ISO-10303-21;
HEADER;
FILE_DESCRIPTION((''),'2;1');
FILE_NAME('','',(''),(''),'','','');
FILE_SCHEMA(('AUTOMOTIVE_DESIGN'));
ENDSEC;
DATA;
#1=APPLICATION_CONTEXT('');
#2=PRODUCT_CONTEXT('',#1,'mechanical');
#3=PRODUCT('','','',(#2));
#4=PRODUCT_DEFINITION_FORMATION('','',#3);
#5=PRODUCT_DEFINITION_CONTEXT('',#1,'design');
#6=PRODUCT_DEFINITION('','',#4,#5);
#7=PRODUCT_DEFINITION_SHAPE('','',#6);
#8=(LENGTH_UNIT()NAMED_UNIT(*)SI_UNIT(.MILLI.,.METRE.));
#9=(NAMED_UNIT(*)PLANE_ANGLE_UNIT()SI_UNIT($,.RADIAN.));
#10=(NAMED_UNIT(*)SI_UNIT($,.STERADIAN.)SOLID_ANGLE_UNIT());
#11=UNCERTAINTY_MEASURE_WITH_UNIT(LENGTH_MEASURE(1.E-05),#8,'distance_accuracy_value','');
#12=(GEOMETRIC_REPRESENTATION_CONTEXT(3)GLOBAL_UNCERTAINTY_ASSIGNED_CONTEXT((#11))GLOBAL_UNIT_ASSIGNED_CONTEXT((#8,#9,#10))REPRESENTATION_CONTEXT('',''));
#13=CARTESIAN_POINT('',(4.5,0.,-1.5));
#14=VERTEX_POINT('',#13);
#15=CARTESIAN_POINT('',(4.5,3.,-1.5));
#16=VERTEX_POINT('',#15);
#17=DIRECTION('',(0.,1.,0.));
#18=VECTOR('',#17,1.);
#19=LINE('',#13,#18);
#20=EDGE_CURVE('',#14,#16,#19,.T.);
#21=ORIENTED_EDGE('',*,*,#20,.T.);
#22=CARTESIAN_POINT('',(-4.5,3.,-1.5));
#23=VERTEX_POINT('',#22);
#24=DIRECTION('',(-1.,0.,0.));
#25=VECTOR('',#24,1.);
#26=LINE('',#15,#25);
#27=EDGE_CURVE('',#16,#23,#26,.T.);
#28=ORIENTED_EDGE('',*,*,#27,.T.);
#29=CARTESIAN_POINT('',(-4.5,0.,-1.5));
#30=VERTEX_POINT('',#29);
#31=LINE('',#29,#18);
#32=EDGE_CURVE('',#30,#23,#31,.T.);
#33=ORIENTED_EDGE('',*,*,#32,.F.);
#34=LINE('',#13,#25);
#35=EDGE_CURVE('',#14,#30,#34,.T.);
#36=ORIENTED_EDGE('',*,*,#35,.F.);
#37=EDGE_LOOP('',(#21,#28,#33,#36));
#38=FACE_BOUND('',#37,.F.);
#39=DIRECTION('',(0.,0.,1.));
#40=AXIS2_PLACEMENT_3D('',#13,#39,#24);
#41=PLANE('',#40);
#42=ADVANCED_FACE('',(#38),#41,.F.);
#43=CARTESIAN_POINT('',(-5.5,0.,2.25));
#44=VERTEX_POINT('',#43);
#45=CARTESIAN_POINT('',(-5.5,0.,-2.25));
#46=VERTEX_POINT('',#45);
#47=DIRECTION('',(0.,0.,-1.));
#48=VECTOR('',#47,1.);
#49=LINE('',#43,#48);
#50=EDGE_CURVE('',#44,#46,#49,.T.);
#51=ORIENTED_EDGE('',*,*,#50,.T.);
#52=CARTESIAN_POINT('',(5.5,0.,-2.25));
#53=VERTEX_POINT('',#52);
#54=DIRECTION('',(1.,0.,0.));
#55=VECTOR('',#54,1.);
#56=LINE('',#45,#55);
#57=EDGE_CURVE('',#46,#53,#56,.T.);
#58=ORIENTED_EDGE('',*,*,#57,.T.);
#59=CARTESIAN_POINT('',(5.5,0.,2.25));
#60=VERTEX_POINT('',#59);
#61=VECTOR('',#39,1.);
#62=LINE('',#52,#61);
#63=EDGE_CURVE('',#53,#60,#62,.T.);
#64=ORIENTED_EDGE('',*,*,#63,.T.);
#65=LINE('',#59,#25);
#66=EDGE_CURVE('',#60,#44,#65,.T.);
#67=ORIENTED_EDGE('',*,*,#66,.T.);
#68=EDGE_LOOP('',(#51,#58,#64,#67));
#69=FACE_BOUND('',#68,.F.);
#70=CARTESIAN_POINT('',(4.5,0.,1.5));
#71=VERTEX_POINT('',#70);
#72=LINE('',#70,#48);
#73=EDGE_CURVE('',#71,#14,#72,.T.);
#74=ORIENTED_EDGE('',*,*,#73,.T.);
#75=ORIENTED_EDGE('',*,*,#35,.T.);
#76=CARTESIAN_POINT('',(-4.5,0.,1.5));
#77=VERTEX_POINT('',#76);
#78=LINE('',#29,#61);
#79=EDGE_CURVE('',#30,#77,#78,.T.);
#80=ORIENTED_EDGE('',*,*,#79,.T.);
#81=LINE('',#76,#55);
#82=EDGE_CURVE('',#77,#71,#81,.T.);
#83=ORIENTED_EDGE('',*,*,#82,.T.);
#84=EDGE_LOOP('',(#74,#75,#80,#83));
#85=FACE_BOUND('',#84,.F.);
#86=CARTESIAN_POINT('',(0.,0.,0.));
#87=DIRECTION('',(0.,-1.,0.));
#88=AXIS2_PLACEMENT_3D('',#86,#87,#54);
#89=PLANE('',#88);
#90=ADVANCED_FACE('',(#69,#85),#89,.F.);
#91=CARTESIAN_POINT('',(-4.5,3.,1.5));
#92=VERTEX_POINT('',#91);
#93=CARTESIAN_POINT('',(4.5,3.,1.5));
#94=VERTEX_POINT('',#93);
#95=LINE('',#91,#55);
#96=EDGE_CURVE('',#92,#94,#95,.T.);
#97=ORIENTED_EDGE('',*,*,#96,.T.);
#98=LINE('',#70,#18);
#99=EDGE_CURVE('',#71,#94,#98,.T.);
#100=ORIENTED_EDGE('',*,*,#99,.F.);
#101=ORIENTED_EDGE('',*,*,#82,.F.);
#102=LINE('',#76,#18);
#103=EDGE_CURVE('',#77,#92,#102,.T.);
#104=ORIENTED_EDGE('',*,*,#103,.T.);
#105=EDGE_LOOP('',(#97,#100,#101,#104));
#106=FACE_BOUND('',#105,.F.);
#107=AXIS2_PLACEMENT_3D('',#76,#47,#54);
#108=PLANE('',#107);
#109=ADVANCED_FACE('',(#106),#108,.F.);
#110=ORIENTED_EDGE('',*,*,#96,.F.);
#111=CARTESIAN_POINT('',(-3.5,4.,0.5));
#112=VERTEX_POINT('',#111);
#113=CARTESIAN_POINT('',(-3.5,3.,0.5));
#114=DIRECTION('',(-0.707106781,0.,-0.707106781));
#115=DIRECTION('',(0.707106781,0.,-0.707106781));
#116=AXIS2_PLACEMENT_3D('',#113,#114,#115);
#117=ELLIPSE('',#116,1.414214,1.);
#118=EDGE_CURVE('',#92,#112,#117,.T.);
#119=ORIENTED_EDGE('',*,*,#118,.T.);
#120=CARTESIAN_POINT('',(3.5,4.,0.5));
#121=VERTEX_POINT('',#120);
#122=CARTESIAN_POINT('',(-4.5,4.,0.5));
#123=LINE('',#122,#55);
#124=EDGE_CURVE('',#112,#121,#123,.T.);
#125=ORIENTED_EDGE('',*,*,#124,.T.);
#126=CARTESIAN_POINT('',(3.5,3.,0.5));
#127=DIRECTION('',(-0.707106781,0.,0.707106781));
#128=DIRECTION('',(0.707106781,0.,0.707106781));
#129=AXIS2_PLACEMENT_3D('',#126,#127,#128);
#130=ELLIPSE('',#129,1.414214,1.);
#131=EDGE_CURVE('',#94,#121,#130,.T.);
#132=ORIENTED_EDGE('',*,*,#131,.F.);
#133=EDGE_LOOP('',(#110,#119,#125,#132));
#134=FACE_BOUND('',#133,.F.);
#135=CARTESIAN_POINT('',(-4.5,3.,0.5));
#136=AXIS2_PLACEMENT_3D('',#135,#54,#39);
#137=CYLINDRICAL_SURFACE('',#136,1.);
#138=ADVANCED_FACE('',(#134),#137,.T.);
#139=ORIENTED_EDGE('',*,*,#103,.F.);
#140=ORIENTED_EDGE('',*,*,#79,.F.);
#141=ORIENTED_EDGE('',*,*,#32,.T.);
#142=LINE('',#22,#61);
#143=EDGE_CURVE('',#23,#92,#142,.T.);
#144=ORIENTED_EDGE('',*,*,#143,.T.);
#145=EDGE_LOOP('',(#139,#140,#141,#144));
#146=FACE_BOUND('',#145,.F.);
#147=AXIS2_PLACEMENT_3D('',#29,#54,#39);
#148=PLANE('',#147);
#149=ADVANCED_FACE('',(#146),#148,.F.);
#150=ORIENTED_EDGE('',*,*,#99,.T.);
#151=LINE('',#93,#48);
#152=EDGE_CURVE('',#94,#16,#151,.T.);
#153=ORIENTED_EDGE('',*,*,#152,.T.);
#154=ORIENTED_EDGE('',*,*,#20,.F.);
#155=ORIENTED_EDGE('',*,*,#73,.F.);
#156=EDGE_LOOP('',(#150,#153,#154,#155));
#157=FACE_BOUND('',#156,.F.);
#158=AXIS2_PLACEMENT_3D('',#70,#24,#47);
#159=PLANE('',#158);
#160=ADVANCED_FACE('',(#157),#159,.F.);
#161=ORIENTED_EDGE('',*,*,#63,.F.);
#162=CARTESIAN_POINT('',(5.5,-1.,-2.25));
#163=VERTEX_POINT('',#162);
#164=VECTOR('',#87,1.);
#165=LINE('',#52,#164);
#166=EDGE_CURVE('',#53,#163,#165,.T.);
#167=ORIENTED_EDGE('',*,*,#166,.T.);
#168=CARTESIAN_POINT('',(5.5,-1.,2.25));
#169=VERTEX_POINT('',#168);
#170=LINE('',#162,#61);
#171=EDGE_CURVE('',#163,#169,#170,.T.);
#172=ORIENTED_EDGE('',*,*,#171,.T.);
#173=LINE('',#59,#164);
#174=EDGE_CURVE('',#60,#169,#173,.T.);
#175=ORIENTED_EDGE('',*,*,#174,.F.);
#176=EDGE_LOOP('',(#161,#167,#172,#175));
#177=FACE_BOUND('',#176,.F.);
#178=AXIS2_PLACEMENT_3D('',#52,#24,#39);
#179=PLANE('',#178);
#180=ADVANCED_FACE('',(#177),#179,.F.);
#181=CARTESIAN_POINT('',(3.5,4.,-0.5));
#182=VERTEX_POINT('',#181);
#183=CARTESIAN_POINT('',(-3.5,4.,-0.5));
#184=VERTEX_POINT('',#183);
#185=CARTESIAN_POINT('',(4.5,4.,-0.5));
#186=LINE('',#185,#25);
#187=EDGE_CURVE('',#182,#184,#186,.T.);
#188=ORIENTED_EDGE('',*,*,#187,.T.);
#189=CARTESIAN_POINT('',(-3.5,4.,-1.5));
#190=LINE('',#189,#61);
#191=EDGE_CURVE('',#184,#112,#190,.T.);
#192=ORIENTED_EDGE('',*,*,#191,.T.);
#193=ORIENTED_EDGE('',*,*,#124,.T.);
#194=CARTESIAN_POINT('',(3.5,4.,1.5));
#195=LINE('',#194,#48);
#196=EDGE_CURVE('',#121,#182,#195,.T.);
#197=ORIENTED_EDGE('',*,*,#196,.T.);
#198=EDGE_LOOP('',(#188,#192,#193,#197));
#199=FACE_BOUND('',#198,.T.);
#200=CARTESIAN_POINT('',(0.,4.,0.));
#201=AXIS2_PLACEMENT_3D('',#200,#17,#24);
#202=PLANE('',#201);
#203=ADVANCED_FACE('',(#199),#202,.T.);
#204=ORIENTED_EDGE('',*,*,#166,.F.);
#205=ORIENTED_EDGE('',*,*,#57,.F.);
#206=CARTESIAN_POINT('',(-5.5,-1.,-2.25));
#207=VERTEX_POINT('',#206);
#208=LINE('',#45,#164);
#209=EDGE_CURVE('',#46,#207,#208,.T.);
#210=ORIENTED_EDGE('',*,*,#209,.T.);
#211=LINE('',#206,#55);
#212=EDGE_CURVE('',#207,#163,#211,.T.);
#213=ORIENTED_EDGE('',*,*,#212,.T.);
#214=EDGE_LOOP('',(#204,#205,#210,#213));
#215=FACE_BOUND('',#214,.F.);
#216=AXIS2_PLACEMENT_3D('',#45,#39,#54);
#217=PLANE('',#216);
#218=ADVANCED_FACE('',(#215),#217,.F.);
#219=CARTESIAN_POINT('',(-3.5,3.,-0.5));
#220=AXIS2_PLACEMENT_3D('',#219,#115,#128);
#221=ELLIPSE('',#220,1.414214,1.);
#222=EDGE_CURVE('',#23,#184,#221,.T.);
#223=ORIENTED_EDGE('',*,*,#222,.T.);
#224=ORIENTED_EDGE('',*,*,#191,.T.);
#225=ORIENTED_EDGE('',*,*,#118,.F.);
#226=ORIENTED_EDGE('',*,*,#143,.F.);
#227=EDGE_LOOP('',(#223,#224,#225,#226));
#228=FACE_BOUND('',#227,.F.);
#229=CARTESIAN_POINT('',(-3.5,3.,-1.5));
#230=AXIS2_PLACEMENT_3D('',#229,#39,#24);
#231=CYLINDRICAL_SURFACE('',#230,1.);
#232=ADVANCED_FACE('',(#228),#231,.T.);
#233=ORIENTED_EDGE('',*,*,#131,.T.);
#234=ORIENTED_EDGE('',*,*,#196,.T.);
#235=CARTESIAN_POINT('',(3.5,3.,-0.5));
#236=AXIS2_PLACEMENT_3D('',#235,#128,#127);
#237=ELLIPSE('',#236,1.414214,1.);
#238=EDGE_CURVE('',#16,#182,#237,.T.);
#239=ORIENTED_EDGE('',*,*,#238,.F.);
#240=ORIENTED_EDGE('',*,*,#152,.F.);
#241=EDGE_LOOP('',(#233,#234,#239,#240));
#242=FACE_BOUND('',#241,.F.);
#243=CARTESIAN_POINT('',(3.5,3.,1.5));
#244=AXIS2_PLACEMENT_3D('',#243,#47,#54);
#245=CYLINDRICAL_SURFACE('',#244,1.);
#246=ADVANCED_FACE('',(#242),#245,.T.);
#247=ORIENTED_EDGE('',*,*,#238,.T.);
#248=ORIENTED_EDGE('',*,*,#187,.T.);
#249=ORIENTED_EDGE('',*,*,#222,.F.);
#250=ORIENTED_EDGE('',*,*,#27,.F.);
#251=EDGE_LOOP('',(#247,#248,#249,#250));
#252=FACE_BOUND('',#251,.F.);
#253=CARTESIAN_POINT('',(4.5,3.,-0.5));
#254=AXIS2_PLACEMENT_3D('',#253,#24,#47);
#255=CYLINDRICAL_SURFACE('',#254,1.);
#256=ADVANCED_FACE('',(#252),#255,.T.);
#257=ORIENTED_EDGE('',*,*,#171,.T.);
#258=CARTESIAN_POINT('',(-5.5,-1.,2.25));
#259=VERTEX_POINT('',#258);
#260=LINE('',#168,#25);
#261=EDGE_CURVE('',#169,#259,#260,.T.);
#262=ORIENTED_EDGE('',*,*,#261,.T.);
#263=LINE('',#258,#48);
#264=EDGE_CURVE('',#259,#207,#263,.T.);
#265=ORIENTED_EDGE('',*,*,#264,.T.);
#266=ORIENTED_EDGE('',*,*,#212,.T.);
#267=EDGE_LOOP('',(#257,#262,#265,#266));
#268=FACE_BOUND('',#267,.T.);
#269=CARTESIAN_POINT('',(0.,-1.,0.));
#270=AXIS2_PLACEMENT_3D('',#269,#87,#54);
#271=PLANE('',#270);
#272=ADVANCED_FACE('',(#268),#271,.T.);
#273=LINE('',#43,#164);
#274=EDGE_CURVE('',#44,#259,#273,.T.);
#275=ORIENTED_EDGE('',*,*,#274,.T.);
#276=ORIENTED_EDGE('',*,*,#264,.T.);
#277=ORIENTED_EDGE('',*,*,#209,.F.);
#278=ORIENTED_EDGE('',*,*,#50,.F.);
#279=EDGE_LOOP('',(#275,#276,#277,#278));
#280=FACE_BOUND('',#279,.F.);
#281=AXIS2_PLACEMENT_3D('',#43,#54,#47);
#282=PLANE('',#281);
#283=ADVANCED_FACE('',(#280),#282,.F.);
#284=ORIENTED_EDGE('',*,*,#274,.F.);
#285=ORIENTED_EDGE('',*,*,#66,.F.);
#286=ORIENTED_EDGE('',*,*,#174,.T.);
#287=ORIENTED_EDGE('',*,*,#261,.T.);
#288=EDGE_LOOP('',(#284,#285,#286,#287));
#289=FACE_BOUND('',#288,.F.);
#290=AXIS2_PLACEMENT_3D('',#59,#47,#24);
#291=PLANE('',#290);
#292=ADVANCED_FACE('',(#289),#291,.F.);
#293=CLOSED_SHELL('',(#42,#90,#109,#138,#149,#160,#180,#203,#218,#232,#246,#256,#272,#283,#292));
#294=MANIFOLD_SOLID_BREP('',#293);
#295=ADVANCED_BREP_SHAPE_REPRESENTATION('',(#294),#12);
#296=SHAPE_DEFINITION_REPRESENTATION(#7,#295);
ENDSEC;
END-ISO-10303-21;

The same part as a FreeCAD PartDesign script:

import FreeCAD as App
import Part
import Sketcher

V = App.Vector
Q = App.Units.Quantity


def edges_at(feature, points):
    """Names of the edges that pass closest to the given points."""
    edges = feature.Shape.Edges
    near = lambda p: min(range(len(edges)), key=lambda i: edges[i].distToShape(Part.Vertex(*p))[0])
    return sorted({f"Edge{near(p) + 1}" for p in points})


def add_polygon(sketch, points):
    """Adds a closed chain of lines whose ends are joined by coincident constraints."""
    first, n = sketch.GeometryCount, len(points)
    for a, b in zip(points, points[1:] + points[:1]):
        sketch.addGeometry(Part.LineSegment(App.Vector(*a, 0), App.Vector(*b, 0)), False)
    for i in range(n):
        sketch.addConstraint(Sketcher.Constraint("Coincident", first + i, 2, first + (i + 1) % n, 1))

doc = App.newDocument("Part")
params = doc.addObject("Spreadsheet::Sheet", "Params")
for row, (alias, value) in enumerate([
    ("sketch1_width", "9 mm"),
    ("sketch1_height", "3 mm"),
    ("pad1_length", "4 mm"),
    ("sketch2_width", "11 mm"),
    ("sketch2_height", "4.5 mm"),
    ("pad2_length", "1 mm"),
    ("fillet_radius", "1 mm"),
], start=1):
    params.set(f"A{row}", alias)
    params.set(f"B{row}", "=" + value)
    params.setAlias(f"B{row}", alias)

body = doc.addObject("PartDesign::Body", "Body")

# Sketch on XZ plane
sketch1 = doc.addObject("Sketcher::SketchObject", "Sketch")
body.addObject(sketch1)
sketch1.AttachmentSupport = (doc.XZ_Plane, [""])
sketch1.MapMode = "FlatFace"
add_polygon(sketch1, [(4.5, 1.5), (4.5, -1.5), (-4.5, -1.5), (-4.5, 1.5)])  # lines 0-3
sketch1.addConstraint([
    Sketcher.Constraint("Vertical", 0),
    Sketcher.Constraint("Horizontal", 1),
    Sketcher.Constraint("Vertical", 2),
    Sketcher.Constraint("Horizontal", 3),
    Sketcher.Constraint("Symmetric", 0, 2, 2, 2, -1, 1),
    Sketcher.Constraint("DistanceX", 1, 2, 1, 1, Q("9 mm")),
    Sketcher.Constraint("DistanceY", 0, 2, 0, 1, Q("3 mm")),
])
sketch1.setExpression("Constraints[9]", "Params.sketch1_width")
sketch1.setExpression("Constraints[10]", "Params.sketch1_height")
pad1 = doc.addObject("PartDesign::Pad", "Pad")
body.addObject(pad1)
pad1.Profile = sketch1
pad1.setExpression("Length", "Params.pad1_length")
pad1.Reversed = True

# Sketch on XZ plane
sketch2 = doc.addObject("Sketcher::SketchObject", "Sketch001")
body.addObject(sketch2)
sketch2.AttachmentSupport = (doc.XZ_Plane, [""])
sketch2.MapMode = "FlatFace"
add_polygon(sketch2, [(-5.5, 2.25), (-5.5, -2.25), (5.5, -2.25), (5.5, 2.25)])  # lines 0-3
sketch2.addConstraint([
    Sketcher.Constraint("Vertical", 0),
    Sketcher.Constraint("Horizontal", 1),
    Sketcher.Constraint("Vertical", 2),
    Sketcher.Constraint("Horizontal", 3),
    Sketcher.Constraint("Symmetric", 0, 2, 2, 2, -1, 1),
    Sketcher.Constraint("DistanceX", 1, 1, 1, 2, Q("11 mm")),
    Sketcher.Constraint("DistanceY", 0, 2, 0, 1, Q("4.5 mm")),
])
sketch2.setExpression("Constraints[9]", "Params.sketch2_width")
sketch2.setExpression("Constraints[10]", "Params.sketch2_height")
pad2 = doc.addObject("PartDesign::Pad", "Pad001")
body.addObject(pad2)
pad2.Profile = sketch2
pad2.setExpression("Length", "Params.pad2_length")
doc.recompute()

fillet = doc.addObject("PartDesign::Fillet", "Fillet")
body.addObject(fillet)
fillet.Base = (pad2, edges_at(pad2, [
    (0, 4, 1.5),
    (-4.5, 4, 0),
    (0, 4, -1.5),
    (4.5, 4, 0),
]))
fillet.setExpression("Radius", "Params.fillet_radius")

doc.recompute()
